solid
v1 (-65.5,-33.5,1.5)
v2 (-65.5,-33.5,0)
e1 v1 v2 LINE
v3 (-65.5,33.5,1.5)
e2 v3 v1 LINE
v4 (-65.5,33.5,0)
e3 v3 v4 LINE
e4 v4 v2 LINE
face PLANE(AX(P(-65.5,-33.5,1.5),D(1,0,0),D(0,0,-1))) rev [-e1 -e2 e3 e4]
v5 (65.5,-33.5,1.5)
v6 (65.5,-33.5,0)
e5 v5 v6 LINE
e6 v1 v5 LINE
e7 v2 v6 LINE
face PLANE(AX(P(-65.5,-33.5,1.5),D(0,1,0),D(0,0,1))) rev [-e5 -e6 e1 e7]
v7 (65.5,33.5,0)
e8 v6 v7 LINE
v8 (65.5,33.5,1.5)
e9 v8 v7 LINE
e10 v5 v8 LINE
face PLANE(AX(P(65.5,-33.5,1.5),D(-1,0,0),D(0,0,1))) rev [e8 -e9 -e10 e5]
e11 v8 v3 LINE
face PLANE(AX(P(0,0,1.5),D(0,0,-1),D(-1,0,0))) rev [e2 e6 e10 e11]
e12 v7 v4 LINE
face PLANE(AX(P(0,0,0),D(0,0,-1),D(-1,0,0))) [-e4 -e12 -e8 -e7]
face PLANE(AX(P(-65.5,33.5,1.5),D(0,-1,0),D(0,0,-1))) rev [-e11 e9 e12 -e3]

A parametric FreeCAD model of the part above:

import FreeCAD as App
import Part
import Sketcher
from FreeCAD import Vector
Q = App.Units.Quantity


def add_polygon(sketch, points):
    """Adds a closed chain of lines whose ends are joined by coincident constraints."""
    first, n = sketch.GeometryCount, len(points)
    for a, b in zip(points, points[1:] + points[:1]):
        sketch.addGeometry(Part.LineSegment(App.Vector(*a, 0), App.Vector(*b, 0)), False)
    for i in range(n):
        sketch.addConstraint(Sketcher.Constraint("Coincident", first + i, 2, first + (i + 1) % n, 1))

doc = App.newDocument("Part")
body = doc.addObject("PartDesign::Body", "Body")

sketch1 = body.newObject("Sketcher::SketchObject", "Sketch")
sketch1.AttachmentSupport = (doc.getObject("XY_Plane"), [""])
sketch1.MapMode = "FlatFace"
add_polygon(sketch1, [(-66, 34), (-66, -34), (66, -34), (66, 34)])
sketch1.addConstraint(Sketcher.Constraint("Vertical", 0))
sketch1.addConstraint(Sketcher.Constraint("Horizontal", 1))
sketch1.addConstraint(Sketcher.Constraint("Vertical", 2))
sketch1.addConstraint(Sketcher.Constraint("Horizontal", 3))
sketch1.addConstraint(Sketcher.Constraint("Symmetric", 0, 2, 2, 2, -1, 1))
sketch1.addConstraint(Sketcher.Constraint("DistanceX", 1, 1, 1, 2, Q("131 mm")))
sketch1.addConstraint(Sketcher.Constraint("DistanceY", 0, 2, 0, 1, Q("67 mm")))
pad1 = body.newObject("PartDesign::Pad", "Pad")
pad1.Profile = sketch1
pad1.Length = 1.5

doc.recompute()
